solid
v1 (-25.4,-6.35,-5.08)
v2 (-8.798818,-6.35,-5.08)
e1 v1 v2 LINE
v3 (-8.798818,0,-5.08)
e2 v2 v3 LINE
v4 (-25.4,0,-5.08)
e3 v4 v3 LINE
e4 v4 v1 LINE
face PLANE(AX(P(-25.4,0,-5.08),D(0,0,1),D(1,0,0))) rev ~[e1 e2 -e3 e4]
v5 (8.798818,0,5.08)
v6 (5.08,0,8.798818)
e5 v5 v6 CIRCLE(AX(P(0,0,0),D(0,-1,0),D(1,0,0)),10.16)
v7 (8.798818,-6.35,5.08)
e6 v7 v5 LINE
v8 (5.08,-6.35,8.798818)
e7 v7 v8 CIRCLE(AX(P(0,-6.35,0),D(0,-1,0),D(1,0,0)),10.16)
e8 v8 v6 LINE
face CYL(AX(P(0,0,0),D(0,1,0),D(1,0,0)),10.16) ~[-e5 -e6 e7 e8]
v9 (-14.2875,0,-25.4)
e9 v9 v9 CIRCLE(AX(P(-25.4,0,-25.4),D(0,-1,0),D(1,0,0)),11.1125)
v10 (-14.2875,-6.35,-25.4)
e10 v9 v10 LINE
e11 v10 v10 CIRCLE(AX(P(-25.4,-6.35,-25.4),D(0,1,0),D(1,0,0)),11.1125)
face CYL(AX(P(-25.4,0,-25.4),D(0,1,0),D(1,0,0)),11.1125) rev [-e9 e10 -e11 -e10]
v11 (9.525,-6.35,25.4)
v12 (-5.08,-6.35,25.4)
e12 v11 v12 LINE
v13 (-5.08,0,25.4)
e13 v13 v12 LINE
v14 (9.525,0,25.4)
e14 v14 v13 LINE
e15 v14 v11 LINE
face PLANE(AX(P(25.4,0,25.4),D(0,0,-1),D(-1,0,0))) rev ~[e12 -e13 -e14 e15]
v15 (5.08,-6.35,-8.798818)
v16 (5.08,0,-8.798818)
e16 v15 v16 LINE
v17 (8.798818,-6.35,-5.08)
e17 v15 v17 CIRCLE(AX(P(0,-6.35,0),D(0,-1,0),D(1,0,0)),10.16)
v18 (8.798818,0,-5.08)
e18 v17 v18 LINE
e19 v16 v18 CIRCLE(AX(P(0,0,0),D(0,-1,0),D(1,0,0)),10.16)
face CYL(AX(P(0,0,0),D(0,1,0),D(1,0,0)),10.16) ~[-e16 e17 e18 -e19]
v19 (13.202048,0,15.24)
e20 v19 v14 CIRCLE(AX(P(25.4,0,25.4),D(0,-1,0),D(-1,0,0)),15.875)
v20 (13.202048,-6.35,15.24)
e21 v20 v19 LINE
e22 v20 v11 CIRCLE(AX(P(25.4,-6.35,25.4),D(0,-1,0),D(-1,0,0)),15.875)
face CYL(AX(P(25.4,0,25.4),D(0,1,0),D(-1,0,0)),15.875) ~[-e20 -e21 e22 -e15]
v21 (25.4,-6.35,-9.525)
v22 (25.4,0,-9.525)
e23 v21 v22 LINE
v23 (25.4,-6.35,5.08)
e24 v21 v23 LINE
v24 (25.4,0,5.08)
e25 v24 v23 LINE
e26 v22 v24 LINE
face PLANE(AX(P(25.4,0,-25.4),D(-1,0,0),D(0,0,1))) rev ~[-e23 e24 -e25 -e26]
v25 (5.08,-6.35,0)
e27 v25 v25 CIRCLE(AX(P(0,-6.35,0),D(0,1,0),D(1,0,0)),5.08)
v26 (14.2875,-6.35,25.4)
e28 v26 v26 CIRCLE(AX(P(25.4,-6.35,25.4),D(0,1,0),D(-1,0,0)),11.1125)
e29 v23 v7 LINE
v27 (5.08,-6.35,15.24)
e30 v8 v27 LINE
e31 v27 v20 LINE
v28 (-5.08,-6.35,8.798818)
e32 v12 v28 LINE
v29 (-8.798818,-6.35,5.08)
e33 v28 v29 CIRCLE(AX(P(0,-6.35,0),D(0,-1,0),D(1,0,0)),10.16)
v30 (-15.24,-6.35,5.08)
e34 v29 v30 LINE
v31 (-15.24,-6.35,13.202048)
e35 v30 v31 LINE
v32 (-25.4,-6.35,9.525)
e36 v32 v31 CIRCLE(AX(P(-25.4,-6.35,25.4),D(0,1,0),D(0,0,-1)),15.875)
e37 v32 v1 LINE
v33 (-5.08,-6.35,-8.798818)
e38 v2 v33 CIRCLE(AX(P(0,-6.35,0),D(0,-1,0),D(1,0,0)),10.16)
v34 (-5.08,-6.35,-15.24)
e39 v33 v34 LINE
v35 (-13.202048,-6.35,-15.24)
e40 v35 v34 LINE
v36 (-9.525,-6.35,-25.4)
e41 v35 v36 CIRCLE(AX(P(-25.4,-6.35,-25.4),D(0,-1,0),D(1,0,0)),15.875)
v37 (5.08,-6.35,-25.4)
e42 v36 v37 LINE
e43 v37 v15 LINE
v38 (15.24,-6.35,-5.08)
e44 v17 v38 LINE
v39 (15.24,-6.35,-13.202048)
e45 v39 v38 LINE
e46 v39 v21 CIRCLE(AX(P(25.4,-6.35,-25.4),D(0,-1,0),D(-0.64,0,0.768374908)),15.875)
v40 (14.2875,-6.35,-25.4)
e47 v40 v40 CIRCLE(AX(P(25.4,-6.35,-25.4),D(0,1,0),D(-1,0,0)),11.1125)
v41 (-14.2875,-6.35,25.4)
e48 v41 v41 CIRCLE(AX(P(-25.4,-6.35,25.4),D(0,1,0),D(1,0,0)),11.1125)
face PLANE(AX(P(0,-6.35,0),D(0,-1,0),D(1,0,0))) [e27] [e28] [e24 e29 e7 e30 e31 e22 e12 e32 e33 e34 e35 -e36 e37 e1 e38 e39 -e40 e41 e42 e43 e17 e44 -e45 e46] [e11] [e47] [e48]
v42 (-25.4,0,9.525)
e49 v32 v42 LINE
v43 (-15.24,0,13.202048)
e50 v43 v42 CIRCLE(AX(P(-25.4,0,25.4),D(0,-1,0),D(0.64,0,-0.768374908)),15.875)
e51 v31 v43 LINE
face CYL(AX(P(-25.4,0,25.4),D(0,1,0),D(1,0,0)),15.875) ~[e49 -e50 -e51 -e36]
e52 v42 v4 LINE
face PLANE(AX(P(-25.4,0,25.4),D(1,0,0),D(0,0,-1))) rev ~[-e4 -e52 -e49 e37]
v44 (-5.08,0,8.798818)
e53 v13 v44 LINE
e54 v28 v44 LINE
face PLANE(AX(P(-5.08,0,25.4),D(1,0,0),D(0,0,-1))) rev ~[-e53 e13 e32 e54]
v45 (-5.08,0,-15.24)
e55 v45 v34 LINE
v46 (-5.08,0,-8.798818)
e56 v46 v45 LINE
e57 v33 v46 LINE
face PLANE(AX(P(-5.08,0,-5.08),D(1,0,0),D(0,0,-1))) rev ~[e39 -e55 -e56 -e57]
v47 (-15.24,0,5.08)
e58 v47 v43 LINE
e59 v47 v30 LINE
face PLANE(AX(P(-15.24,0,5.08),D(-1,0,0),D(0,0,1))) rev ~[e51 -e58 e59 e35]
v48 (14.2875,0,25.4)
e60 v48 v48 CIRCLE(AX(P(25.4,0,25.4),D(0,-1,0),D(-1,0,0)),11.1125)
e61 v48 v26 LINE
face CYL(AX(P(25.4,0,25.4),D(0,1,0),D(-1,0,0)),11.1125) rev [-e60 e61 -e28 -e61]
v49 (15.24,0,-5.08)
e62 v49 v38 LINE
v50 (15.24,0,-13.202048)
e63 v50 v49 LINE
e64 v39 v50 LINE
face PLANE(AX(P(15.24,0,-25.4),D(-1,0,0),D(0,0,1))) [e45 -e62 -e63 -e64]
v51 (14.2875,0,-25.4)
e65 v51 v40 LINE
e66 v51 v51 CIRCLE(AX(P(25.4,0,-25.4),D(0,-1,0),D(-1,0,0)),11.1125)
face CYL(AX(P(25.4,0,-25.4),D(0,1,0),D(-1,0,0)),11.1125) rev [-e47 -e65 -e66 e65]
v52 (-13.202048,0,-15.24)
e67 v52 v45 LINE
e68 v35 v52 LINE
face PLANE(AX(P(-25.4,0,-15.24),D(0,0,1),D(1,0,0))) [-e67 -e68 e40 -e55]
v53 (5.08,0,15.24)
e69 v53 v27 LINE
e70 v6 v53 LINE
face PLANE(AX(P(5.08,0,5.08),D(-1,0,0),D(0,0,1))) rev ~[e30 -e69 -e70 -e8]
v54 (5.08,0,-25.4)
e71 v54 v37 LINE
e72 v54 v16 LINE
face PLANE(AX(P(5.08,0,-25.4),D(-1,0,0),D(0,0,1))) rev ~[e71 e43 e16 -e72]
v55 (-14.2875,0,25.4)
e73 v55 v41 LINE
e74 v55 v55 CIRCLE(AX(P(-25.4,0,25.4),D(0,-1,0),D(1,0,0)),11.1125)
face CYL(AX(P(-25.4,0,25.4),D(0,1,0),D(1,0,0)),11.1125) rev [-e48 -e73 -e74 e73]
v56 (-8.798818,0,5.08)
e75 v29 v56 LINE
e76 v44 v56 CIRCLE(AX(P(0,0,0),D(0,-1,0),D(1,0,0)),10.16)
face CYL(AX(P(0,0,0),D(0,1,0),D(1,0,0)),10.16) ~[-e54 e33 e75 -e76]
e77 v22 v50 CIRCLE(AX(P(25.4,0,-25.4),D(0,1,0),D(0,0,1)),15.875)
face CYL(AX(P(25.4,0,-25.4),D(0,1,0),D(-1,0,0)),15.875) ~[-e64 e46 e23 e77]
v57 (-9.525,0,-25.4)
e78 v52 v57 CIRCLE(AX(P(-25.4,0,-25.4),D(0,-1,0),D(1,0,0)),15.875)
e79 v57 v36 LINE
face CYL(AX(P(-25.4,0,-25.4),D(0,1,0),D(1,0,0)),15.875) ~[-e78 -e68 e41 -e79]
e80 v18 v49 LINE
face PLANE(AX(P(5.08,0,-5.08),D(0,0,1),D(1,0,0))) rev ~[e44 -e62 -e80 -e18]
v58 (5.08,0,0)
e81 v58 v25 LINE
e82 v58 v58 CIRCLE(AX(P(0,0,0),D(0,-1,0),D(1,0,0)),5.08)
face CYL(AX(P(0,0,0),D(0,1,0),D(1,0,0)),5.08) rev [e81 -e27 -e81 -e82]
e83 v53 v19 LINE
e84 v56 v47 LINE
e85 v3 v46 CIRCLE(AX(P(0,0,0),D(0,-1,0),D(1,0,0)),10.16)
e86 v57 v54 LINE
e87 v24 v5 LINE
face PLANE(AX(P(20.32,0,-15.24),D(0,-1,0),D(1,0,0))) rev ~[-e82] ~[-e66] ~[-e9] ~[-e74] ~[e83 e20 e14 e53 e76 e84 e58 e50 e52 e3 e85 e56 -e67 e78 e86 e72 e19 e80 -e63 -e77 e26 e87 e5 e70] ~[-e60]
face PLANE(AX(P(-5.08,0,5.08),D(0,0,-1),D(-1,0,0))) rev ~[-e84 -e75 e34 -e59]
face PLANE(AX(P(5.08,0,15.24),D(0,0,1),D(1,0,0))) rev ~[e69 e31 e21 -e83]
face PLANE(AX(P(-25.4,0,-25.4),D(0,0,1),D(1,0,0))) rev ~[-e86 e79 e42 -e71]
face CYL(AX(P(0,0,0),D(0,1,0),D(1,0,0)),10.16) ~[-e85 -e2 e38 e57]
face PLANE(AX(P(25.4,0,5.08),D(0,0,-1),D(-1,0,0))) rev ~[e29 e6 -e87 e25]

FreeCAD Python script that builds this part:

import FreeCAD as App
import Part
import Sketcher
Q = App.Units.Quantity

doc = App.newDocument("Part")
params = doc.addObject("Spreadsheet::Sheet", "Params")
for row, (alias, value) in enumerate([
    ("sketch1_width", "0.4 in"),
    ("pad1_length", "0.25 in"),
    ("sketch2_diameter", "1.25 in"),
    ("pad2_length", "0.25 in"),
    ("sketch3_diameter", "0.875 in"),
    ("sketch4_diameter", "0.8 in"),
    ("pad3_length", "0.25 in"),
    ("sketch5_diameter", "0.4 in"),
], start=1):
    params.set(f"A{row}", alias)
    params.set(f"B{row}", "=" + value)
    params.setAlias(f"B{row}", alias)

body = doc.addObject("PartDesign::Body", "Body")
body.AllowCompound = True

sketch1 = body.newObject("Sketcher::SketchObject", "Sketch")
sketch1.AttachmentSupport = (doc.getObject("XZ_Plane"), [""])
sketch1.MapMode = "FlatFace"
sketch1.addGeometry([
    Part.LineSegment(App.Vector(15, -5, 0), App.Vector(15, -25, 0)),
    Part.LineSegment(App.Vector(15, -25, 0), App.Vector(25, -25, 0)),
    Part.LineSegment(App.Vector(25, -25, 0), App.Vector(25, 5, 0)),
    Part.LineSegment(App.Vector(25, 5, 0), App.Vector(5, 5, 0)),
    Part.LineSegment(App.Vector(5, 5, 0), App.Vector(5, -5, 0)),
    Part.LineSegment(App.Vector(5, -5, 0), App.Vector(15, -5, 0)),
    Part.LineSegment(App.Vector(5, -25, 0), App.Vector(5, -5, 0)),
    Part.LineSegment(App.Vector(5, -5, 0), App.Vector(-5, -5, 0)),
    Part.LineSegment(App.Vector(-5, -5, 0), App.Vector(-5, -15, 0)),
    Part.LineSegment(App.Vector(-5, -15, 0), App.Vector(-25, -15, 0)),
    Part.LineSegment(App.Vector(-25, -15, 0), App.Vector(-25, -25, 0)),
    Part.LineSegment(App.Vector(-25, -25, 0), App.Vector(5, -25, 0)),
    Part.LineSegment(App.Vector(-5, 5, 0), App.Vector(5, 5, 0)),
    Part.LineSegment(App.Vector(5, 5, 0), App.Vector(5, 15, 0)),
    Part.LineSegment(App.Vector(5, 15, 0), App.Vector(25, 15, 0)),
    Part.LineSegment(App.Vector(25, 15, 0), App.Vector(25, 25, 0)),
    Part.LineSegment(App.Vector(25, 25, 0), App.Vector(-5, 25, 0)),
    Part.LineSegment(App.Vector(-5, 25, 0), App.Vector(-5, 5, 0)),
    Part.LineSegment(App.Vector(-25, -5, 0), App.Vector(-5, -5, 0)),
    Part.LineSegment(App.Vector(-5, -5, 0), App.Vector(-5, 5, 0)),
    Part.LineSegment(App.Vector(-5, 5, 0), App.Vector(-15, 5, 0)),
    Part.LineSegment(App.Vector(-15, 5, 0), App.Vector(-15, 25, 0)),
    Part.LineSegment(App.Vector(-15, 25, 0), App.Vector(-25, 25, 0)),
    Part.LineSegment(App.Vector(-25, 25, 0), App.Vector(-25, -5, 0)),
], False)
sketch1.addConstraint([
    Sketcher.Constraint("Coincident", 0, 2, 1, 1),
    Sketcher.Constraint("Coincident", 1, 2, 2, 1),
    Sketcher.Constraint("Coincident", 2, 2, 3, 1),
    Sketcher.Constraint("Coincident", 3, 2, 4, 1),
    Sketcher.Constraint("Coincident", 4, 2, 5, 1),
    Sketcher.Constraint("Coincident", 5, 2, 0, 1),
    Sketcher.Constraint("Coincident", 6, 2, 7, 1),
    Sketcher.Constraint("Coincident", 7, 2, 8, 1),
    Sketcher.Constraint("Coincident", 8, 2, 9, 1),
    Sketcher.Constraint("Coincident", 9, 2, 10, 1),
    Sketcher.Constraint("Coincident", 10, 2, 11, 1),
    Sketcher.Constraint("Coincident", 11, 2, 6, 1),
    Sketcher.Constraint("Coincident", 12, 2, 13, 1),
    Sketcher.Constraint("Coincident", 13, 2, 14, 1),
    Sketcher.Constraint("Coincident", 14, 2, 15, 1),
    Sketcher.Constraint("Coincident", 15, 2, 16, 1),
    Sketcher.Constraint("Coincident", 16, 2, 17, 1),
    Sketcher.Constraint("Coincident", 17, 2, 12, 1),
    Sketcher.Constraint("Coincident", 18, 2, 19, 1),
    Sketcher.Constraint("Coincident", 19, 2, 20, 1),
    Sketcher.Constraint("Coincident", 20, 2, 21, 1),
    Sketcher.Constraint("Coincident", 21, 2, 22, 1),
    Sketcher.Constraint("Coincident", 22, 2, 23, 1),
    Sketcher.Constraint("Coincident", 23, 2, 18, 1),
    Sketcher.Constraint("Vertical", 0),
    Sketcher.Constraint("Horizontal", 1),
    Sketcher.Constraint("Vertical", 2),
    Sketcher.Constraint("Horizontal", 3),
    Sketcher.Constraint("Vertical", 4),
    Sketcher.Constraint("Horizontal", 5),
    Sketcher.Constraint("Vertical", 6),
    Sketcher.Constraint("Horizontal", 7),
    Sketcher.Constraint("Vertical", 8),
    Sketcher.Constraint("Horizontal", 9),
    Sketcher.Constraint("Vertical", 10),
    Sketcher.Constraint("Horizontal", 11),
    Sketcher.Constraint("Horizontal", 12),
    Sketcher.Constraint("Vertical", 13),
    Sketcher.Constraint("Horizontal", 14),
    Sketcher.Constraint("Vertical", 15),
    Sketcher.Constraint("Horizontal", 16),
    Sketcher.Constraint("Vertical", 17),
    Sketcher.Constraint("Horizontal", 18),
    Sketcher.Constraint("Vertical", 19),
    Sketcher.Constraint("Horizontal", 20),
    Sketcher.Constraint("Vertical", 21),
    Sketcher.Constraint("Horizontal", 22),
    Sketcher.Constraint("Vertical", 23),
    Sketcher.Constraint("Coincident", 6, 2, 4, 2),
    Sketcher.Constraint("Coincident", 12, 2, 3, 2),
    Sketcher.Constraint("Coincident", 18, 2, 7, 2),
    Sketcher.Constraint("Coincident", 19, 2, 17, 2),
    Sketcher.Constraint("Symmetric", 3, 2, 7, 2, -1, 1),
    Sketcher.Constraint("Symmetric", 9, 2, 14, 2, -1, 1),
    Sketcher.Constraint("Symmetric", 0, 2, 21, 2, -1, 1),
    Sketcher.Constraint("Symmetric", 1, 2, 10, 2, -2),
    Sketcher.Constraint("Symmetric", 15, 2, 22, 2, -2),
    Sketcher.Constraint("Equal", 1, 5),
    Sketcher.Constraint("Equal", 5, 7),
    Sketcher.Constraint("Equal", 18, 0),
    Sketcher.Constraint("Equal", 16, 2),
    Sketcher.Constraint("Equal", 4, 8),
    Sketcher.Constraint("DistanceX", 1, 1, 1, 2, Q("0.4 in")),
])
sketch1.setExpression("Constraints[62]", "Params.sketch1_width")
pad1 = body.newObject("PartDesign::Pad", "Pad")
pad1.Profile = sketch1
pad1.setExpression("Length", "Params.pad1_length")

sketch2 = body.newObject("Sketcher::SketchObject", "Sketch001")
sketch2.AttachmentSupport = (doc.getObject("XZ_Plane"), [""])
sketch2.MapMode = "FlatFace"
sketch2.addGeometry([
    Part.Circle(App.Vector(-25, 25, 0), App.Vector(0, 0, 1), 16),
    Part.Circle(App.Vector(25, 25, 0), App.Vector(0, 0, 1), 16),
    Part.Circle(App.Vector(25, -25, 0), App.Vector(0, 0, 1), 16),
    Part.Circle(App.Vector(-25, -25, 0), App.Vector(0, 0, 1), 16),
], False)
sketch2.addConstraint([
    Sketcher.Constraint("Equal", 0, 1),
    Sketcher.Constraint("Equal", 1, 2),
    Sketcher.Constraint("Equal", 2, 3),
    Sketcher.Constraint("Symmetric", 0, 3, 2, 3, -1, 1),
    Sketcher.Constraint("Symmetric", 1, 3, 3, 3, -1, 1),
    Sketcher.Constraint("Symmetric", 0, 3, 1, 3, -2),
    Sketcher.Constraint("Diameter", 0, Q("1.25 in")),
    Sketcher.Constraint("DistanceX", 0, 3, -1, 1, Q("1 in")),
    Sketcher.Constraint("DistanceY", -1, 1, 0, 3, Q("1 in")),
])
sketch2.setExpression("Constraints[6]", "Params.sketch2_diameter")
pad2 = body.newObject("PartDesign::Pad", "Pad001")
pad2.Profile = sketch2
pad2.setExpression("Length", "Params.pad2_length")

sketch3 = body.newObject("Sketcher::SketchObject", "Sketch002")
sketch3.AttachmentSupport = (doc.getObject("XZ_Plane"), [""])
sketch3.MapMode = "FlatFace"
sketch3.addGeometry([
    Part.Circle(App.Vector(-25, 25, 0), App.Vector(0, 0, 1), 11),
    Part.Circle(App.Vector(25, 25, 0), App.Vector(0, 0, 1), 11),
    Part.Circle(App.Vector(25, -25, 0), App.Vector(0, 0, 1), 11),
    Part.Circle(App.Vector(-25, -25, 0), App.Vector(0, 0, 1), 11),
], False)
sketch3.addConstraint([
    Sketcher.Constraint("Equal", 0, 1),
    Sketcher.Constraint("Equal", 1, 2),
    Sketcher.Constraint("Equal", 2, 3),
    Sketcher.Constraint("Symmetric", 0, 3, 2, 3, -1, 1),
    Sketcher.Constraint("Symmetric", 1, 3, 3, 3, -1, 1),
    Sketcher.Constraint("Symmetric", 0, 3, 1, 3, -2),
    Sketcher.Constraint("Diameter", 0, Q("0.875 in")),
    Sketcher.Constraint("DistanceX", 0, 3, -1, 1, Q("1 in")),
    Sketcher.Constraint("DistanceY", -1, 1, 0, 3, Q("1 in")),
])
sketch3.setExpression("Constraints[6]", "Params.sketch3_diameter")
pocket1 = body.newObject("PartDesign::Pocket", "Pocket")
pocket1.Profile = sketch3
pocket1.Type = "ThroughAll"
pocket1.Reversed = True

sketch4 = body.newObject("Sketcher::SketchObject", "Sketch003")
sketch4.AttachmentSupport = (doc.getObject("XZ_Plane"), [""])
sketch4.MapMode = "FlatFace"
sketch4.addGeometry(Part.Circle(App.Vector(0, 0, 0), App.Vector(0, 0, 1), 10), False)
sketch4.addConstraint([
    Sketcher.Constraint("Coincident", 0, 3, -1, 1),
    Sketcher.Constraint("Diameter", 0, Q("0.8 in")),
])
sketch4.setExpression("Constraints[1]", "Params.sketch4_diameter")
pad3 = body.newObject("PartDesign::Pad", "Pad002")
pad3.Profile = sketch4
pad3.setExpression("Length", "Params.pad3_length")

sketch5 = body.newObject("Sketcher::SketchObject", "Sketch004")
sketch5.AttachmentSupport = (doc.getObject("XZ_Plane"), [""])
sketch5.MapMode = "FlatFace"
sketch5.addGeometry(Part.Circle(App.Vector(0, 0, 0), App.Vector(0, 0, 1), 5), False)
sketch5.addConstraint([
    Sketcher.Constraint("Coincident", 0, 3, -1, 1),
    Sketcher.Constraint("Diameter", 0, Q("0.4 in")),
])
sketch5.setExpression("Constraints[1]", "Params.sketch5_diameter")
pocket2 = body.newObject("PartDesign::Pocket", "Pocket001")
pocket2.Profile = sketch5
pocket2.Type = "ThroughAll"
pocket2.Reversed = True

doc.recompute()
